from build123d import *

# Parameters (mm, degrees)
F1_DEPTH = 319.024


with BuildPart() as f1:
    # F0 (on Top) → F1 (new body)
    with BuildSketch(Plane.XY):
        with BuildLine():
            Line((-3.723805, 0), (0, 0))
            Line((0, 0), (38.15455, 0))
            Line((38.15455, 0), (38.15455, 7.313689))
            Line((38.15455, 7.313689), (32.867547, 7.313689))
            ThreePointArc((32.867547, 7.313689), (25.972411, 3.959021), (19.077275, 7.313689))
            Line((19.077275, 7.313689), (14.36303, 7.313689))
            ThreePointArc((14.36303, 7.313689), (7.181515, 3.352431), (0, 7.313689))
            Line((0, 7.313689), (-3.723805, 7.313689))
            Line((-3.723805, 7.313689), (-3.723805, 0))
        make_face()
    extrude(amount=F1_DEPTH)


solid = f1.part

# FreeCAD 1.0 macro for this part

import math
import FreeCAD as App
import Part
import Sketcher
Q = App.Units.Quantity

doc = App.newDocument("Part")
body = doc.addObject("PartDesign::Body", "Body")

# Sketch on XY plane
sketch1 = body.newObject("Sketcher::SketchObject", "Sketch")
sketch1.AttachmentSupport = (doc.getObject("XY_Plane"), [""])
sketch1.MapMode = "FlatFace"
sketch1.addGeometry(Part.LineSegment(App.Vector(-3.7, 0, 0), App.Vector(38.2, 0, 0)), False)
sketch1.addGeometry(Part.LineSegment(App.Vector(38.2, 0, 0), App.Vector(38.2, 7.3, 0)), False)
sketch1.addGeometry(Part.LineSegment(App.Vector(38.2, 7.3, 0), App.Vector(32.9, 7.3, 0)), False)
sketch1.addGeometry(Part.ArcOfCircle(Part.Circle(App.Vector(26, 12.7, 0), App.Vector(0, 0, 1), 8.8), math.radians(-142), math.radians(-38)), False)
sketch1.addGeometry(Part.LineSegment(App.Vector(19.1, 7.3, 0), App.Vector(14.4, 7.3, 0)), False)
sketch1.addGeometry(Part.ArcOfCircle(Part.Circle(App.Vector(7.2, 11.8, 0), App.Vector(0, 0, 1), 8.5), math.radians(-148), math.radians(-32)), False)
sketch1.addGeometry(Part.LineSegment(App.Vector(0, 7.3, 0), App.Vector(-3.7, 7.3, 0)), False)
sketch1.addGeometry(Part.LineSegment(App.Vector(-3.7, 7.3, 0), App.Vector(-3.7, 0, 0)), False)
sketch1.addConstraint(Sketcher.Constraint("Coincident", 0, 2, 1, 1))
sketch1.addConstraint(Sketcher.Constraint("Coincident", 1, 2, 2, 1))
sketch1.addConstraint(Sketcher.Constraint("Coincident", 2, 2, 3, 2))
sketch1.addConstraint(Sketcher.Constraint("Coincident", 3, 1, 4, 1))
sketch1.addConstraint(Sketcher.Constraint("Coincident", 4, 2, 5, 2))
sketch1.addConstraint(Sketcher.Constraint("Coincident", 5, 1, 6, 1))
sketch1.addConstraint(Sketcher.Constraint("Coincident", 6, 2, 7, 1))
sketch1.addConstraint(Sketcher.Constraint("Coincident", 7, 2, 0, 1))
sketch1.addConstraint(Sketcher.Constraint("Horizontal", 0))
sketch1.addConstraint(Sketcher.Constraint("Vertical", 1))
sketch1.addConstraint(Sketcher.Constraint("Horizontal", 2))
sketch1.addConstraint(Sketcher.Constraint("Horizontal", 4))
sketch1.addConstraint(Sketcher.Constraint("Horizontal", 6))
sketch1.addConstraint(Sketcher.Constraint("Vertical", 7))
sketch1.addConstraint(Sketcher.Constraint("PointOnObject", 0, 2, -1))
sketch1.addConstraint(Sketcher.Constraint("PointOnObject", 5, 1, -2))
sketch1.addConstraint(Sketcher.Constraint("Horizontal", 2, 2, 3, 1))
sketch1.addConstraint(Sketcher.Constraint("Horizontal", 4, 2, 5, 1))
sketch1.addConstraint(Sketcher.Constraint("DistanceX", 4, 2, 4, 1, Q("0.1856002 in")))
sketch1.addConstraint(Sketcher.Constraint("Radius", 5, 8.49045))
sketch1.addConstraint(Sketcher.Constraint("Radius", 3, 8.763415))
sketch1.addConstraint(Sketcher.Constraint("DistanceY", 1, 1, 1, 2, 7.313689))
sketch1.addConstraint(Sketcher.Constraint("DistanceX", 0, 1, 0, 2, 41.878355))
sketch1.addConstraint(Sketcher.Constraint("DistanceX", 2, 2, 2, 1, 5.287003))
sketch1.addConstraint(Sketcher.Constraint("DistanceX", 6, 2, 6, 1, 3.723805))
sketch1.addConstraint(Sketcher.Constraint("DistanceX", -1, 1, 3, 3, 25.972411))
pad1 = body.newObject("PartDesign::Pad", "Pad")
pad1.Profile = sketch1
pad1.Length = Q("12.56 in")

doc.recompute()
